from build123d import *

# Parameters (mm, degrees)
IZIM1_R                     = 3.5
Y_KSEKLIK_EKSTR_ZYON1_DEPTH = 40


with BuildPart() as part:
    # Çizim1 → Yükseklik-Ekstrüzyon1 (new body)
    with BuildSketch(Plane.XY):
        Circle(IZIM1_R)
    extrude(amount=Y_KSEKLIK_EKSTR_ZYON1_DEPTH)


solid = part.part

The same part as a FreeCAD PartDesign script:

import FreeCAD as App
import Part
import Sketcher
from FreeCAD import Vector
Q = App.Units.Quantity

doc = App.newDocument("Part")
body = doc.addObject("PartDesign::Body", "Body")

# Sketch on XY plane
sketch1 = body.newObject("Sketcher::SketchObject", "Sketch")
sketch1.AttachmentSupport = (doc.getObject("XY_Plane"), [""])
sketch1.MapMode = "FlatFace"
sketch1.addGeometry(Part.Circle(Vector(0, 0, 0), Vector(0, 0, 1), 3.5), False)
sketch1.addConstraint(Sketcher.Constraint("Coincident", 0, 3, -1, 1))
sketch1.addConstraint(Sketcher.Constraint("Diameter", 0, Q("7 mm")))
pad1 = body.newObject("PartDesign::Pad", "Pad")
pad1.Profile = sketch1
pad1.Length = 40

doc.recompute()
